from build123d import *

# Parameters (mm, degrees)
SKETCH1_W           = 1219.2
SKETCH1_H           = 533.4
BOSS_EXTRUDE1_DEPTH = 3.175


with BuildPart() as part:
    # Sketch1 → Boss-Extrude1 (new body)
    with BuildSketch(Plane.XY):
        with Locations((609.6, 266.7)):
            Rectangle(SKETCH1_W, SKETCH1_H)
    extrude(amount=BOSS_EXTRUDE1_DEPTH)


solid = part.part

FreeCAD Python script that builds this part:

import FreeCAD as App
import Part
import Sketcher
from FreeCAD import Vector
Q = App.Units.Quantity

doc = App.newDocument("Part")
body = doc.addObject("PartDesign::Body", "Body")

# Sketch on XY plane
sketch1 = body.newObject("Sketcher::SketchObject", "Sketch")
sketch1.AttachmentSupport = (doc.getObject("XY_Plane"), [""])
sketch1.MapMode = "FlatFace"
sketch1.addGeometry(Part.LineSegment(Vector(0, 533, 0), Vector(0, 0, 0)), False)
sketch1.addGeometry(Part.LineSegment(Vector(0, 0, 0), Vector(1219, 0, 0)), False)
sketch1.addGeometry(Part.LineSegment(Vector(1219, 0, 0), Vector(1219, 533, 0)), False)
sketch1.addGeometry(Part.LineSegment(Vector(1219, 533, 0), Vector(0, 533, 0)), False)
sketch1.addConstraint(Sketcher.Constraint("Coincident", 0, 2, 1, 1))
sketch1.addConstraint(Sketcher.Constraint("Coincident", 1, 2, 2, 1))
sketch1.addConstraint(Sketcher.Constraint("Coincident", 2, 2, 3, 1))
sketch1.addConstraint(Sketcher.Constraint("Coincident", 3, 2, 0, 1))
sketch1.addConstraint(Sketcher.Constraint("Vertical", 0))
sketch1.addConstraint(Sketcher.Constraint("Horizontal", 1))
sketch1.addConstraint(Sketcher.Constraint("Vertical", 2))
sketch1.addConstraint(Sketcher.Constraint("Horizontal", 3))
sketch1.addConstraint(Sketcher.Constraint("Coincident", 0, 2, -1, 1))
sketch1.addConstraint(Sketcher.Constraint("DistanceX", 1, 1, 1, 2, Q("48 in")))
sketch1.addConstraint(Sketcher.Constraint("DistanceY", 0, 2, 0, 1, Q("21 in")))
pad1 = body.newObject("PartDesign::Pad", "Pad")
pad1.Profile = sketch1
pad1.Length = Q("0.125 in")

doc.recompute()
